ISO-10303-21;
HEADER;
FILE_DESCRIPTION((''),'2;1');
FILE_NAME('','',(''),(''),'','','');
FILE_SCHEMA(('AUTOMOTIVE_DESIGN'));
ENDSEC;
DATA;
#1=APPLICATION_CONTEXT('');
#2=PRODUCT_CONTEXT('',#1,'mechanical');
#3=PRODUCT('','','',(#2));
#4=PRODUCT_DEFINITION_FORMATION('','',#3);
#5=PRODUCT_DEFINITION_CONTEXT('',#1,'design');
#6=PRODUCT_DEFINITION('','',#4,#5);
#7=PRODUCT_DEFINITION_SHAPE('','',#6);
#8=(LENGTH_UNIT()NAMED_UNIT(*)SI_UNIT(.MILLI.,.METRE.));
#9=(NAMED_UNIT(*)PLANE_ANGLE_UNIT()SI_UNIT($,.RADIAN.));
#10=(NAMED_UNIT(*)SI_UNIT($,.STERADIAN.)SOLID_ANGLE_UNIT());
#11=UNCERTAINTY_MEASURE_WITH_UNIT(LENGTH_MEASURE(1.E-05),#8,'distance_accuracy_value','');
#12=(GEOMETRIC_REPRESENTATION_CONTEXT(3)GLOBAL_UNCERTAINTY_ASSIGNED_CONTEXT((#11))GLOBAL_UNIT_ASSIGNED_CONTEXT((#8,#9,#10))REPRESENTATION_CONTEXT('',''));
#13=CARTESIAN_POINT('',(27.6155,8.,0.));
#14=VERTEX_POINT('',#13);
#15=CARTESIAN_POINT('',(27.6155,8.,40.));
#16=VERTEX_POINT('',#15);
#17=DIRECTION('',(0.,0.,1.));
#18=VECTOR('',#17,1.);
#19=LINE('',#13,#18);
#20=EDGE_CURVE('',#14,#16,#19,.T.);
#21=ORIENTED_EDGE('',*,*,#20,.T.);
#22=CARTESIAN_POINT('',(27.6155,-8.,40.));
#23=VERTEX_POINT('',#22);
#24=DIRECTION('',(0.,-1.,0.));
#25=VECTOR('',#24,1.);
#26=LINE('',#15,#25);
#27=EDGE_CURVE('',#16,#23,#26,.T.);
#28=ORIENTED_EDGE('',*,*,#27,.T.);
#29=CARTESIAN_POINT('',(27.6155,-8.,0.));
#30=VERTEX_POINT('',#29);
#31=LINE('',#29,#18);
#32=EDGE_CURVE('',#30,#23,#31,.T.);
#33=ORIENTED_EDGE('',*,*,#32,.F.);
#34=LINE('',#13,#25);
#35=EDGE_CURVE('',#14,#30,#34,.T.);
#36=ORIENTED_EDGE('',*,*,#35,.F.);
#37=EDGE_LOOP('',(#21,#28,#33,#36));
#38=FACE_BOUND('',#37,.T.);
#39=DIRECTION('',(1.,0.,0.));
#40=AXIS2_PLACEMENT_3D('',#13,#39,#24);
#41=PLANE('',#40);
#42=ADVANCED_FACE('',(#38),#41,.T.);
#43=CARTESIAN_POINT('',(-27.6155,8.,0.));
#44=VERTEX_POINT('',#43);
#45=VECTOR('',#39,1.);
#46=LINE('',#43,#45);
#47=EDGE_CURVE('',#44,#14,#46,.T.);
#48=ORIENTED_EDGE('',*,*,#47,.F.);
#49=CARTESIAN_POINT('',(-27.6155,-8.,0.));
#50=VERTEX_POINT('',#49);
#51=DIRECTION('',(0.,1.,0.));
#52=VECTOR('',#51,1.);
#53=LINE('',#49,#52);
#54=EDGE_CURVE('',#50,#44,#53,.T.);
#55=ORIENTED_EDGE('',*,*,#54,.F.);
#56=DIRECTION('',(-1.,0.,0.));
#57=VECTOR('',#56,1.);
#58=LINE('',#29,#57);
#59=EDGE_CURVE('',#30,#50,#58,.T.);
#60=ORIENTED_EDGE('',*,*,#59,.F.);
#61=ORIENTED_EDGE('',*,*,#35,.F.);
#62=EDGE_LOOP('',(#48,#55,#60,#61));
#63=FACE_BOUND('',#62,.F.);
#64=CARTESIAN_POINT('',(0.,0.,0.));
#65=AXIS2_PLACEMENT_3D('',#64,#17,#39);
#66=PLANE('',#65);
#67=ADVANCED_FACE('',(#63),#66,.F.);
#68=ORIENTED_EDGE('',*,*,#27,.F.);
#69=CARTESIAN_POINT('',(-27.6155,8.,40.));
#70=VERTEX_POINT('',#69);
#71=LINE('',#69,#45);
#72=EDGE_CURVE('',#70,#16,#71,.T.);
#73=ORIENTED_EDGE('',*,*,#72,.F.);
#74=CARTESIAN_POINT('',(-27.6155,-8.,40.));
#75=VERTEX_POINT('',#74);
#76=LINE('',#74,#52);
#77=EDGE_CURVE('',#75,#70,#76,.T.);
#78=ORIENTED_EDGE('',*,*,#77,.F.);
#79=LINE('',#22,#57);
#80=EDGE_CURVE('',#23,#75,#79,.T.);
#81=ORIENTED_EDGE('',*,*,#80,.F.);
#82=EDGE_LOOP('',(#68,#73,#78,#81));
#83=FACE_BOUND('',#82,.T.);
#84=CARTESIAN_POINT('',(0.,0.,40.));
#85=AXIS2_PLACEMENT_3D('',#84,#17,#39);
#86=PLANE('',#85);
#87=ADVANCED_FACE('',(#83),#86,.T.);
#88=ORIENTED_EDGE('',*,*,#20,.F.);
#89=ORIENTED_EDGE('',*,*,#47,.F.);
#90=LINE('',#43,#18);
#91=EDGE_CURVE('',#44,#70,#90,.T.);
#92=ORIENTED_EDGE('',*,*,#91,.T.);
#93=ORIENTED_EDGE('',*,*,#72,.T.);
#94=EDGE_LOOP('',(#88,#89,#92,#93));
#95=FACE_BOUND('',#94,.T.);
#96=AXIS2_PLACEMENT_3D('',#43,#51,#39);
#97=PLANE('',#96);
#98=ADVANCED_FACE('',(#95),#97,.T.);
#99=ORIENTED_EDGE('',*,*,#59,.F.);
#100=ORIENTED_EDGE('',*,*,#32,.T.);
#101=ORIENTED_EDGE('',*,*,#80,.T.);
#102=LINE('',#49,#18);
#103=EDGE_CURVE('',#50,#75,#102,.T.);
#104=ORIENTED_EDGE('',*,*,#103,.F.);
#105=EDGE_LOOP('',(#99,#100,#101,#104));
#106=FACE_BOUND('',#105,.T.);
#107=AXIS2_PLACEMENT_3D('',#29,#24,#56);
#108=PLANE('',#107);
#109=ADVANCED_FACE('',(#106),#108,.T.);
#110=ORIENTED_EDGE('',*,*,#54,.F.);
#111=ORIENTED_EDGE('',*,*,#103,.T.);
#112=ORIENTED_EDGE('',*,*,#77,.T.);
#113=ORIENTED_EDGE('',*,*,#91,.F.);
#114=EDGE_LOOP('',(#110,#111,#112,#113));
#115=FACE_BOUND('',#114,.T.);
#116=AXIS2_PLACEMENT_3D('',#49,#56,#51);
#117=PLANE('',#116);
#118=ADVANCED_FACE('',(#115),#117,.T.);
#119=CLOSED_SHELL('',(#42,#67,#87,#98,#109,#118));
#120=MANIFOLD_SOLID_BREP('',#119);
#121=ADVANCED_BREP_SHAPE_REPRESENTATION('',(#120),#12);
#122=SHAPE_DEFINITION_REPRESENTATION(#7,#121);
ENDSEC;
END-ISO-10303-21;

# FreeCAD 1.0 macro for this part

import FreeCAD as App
import Part
import Sketcher
from FreeCAD import Vector
Q = App.Units.Quantity

doc = App.newDocument("Part")
params = doc.addObject("Spreadsheet::Sheet", "Params")
for row, (alias, value) in enumerate([
    ("sketch1_height", "16 mm"),
    ("pad1_length", "40 mm"),
], start=1):
    params.set(f"A{row}", alias)
    params.set(f"B{row}", "=" + value)
    params.setAlias(f"B{row}", alias)

body = doc.addObject("PartDesign::Body", "Body")

# Sketch on XY plane
sketch1 = body.newObject("Sketcher::SketchObject", "Sketch")
sketch1.AttachmentSupport = (doc.getObject("XY_Plane"), [""])
sketch1.MapMode = "FlatFace"
sketch1.addGeometry(Part.LineSegment(Vector(-27.6155, -8, 0), Vector(27.6155, -8, 0)), False)
sketch1.addGeometry(Part.LineSegment(Vector(27.6155, -8, 0), Vector(27.6155, 8, 0)), False)
sketch1.addGeometry(Part.LineSegment(Vector(27.6155, 8, 0), Vector(-27.6155, 8, 0)), False)
sketch1.addGeometry(Part.LineSegment(Vector(-27.6155, 8, 0), Vector(-27.6155, -8, 0)), False)
sketch1.addConstraint(Sketcher.Constraint("Coincident", 0, 2, 1, 1))
sketch1.addConstraint(Sketcher.Constraint("Coincident", 1, 2, 2, 1))
sketch1.addConstraint(Sketcher.Constraint("Coincident", 2, 2, 3, 1))
sketch1.addConstraint(Sketcher.Constraint("Coincident", 3, 2, 0, 1))
sketch1.addConstraint(Sketcher.Constraint("Horizontal", 0))
sketch1.addConstraint(Sketcher.Constraint("Vertical", 1))
sketch1.addConstraint(Sketcher.Constraint("Horizontal", 2))
sketch1.addConstraint(Sketcher.Constraint("Vertical", 3))
sketch1.addConstraint(Sketcher.Constraint("Symmetric", 0, 2, 2, 2, -1, 1))
sketch1.addConstraint(Sketcher.Constraint("DistanceY", 1, 1, 1, 2, Q("16 mm")))
sketch1.addConstraint(Sketcher.Constraint("DistanceX", 0, 1, 0, 2, Q("55.231 mm")))
sketch1.setExpression("Constraints[9]", "Params.sketch1_height")
pad1 = body.newObject("PartDesign::Pad", "Pad")
pad1.Profile = sketch1
pad1.setExpression("Length", "Params.pad1_length")

doc.recompute()
